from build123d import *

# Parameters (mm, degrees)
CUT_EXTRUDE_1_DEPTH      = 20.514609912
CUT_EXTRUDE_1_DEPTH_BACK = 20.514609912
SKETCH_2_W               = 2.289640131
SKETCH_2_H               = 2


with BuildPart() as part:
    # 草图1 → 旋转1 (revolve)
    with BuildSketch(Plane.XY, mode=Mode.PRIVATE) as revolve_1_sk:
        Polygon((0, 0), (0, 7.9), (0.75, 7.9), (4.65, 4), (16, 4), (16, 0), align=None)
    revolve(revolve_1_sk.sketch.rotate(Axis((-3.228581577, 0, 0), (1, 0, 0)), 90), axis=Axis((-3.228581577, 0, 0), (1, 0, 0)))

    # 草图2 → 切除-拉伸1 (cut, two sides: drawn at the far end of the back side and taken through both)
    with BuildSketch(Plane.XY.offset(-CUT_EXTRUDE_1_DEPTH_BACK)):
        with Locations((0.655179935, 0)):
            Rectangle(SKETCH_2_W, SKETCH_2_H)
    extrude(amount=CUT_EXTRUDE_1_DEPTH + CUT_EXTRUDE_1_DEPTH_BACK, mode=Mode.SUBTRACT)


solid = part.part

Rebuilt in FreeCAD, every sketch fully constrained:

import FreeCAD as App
import Part
import Sketcher
from FreeCAD import Vector
Q = App.Units.Quantity


def add_polygon(sketch, points):
    """Adds a closed chain of lines whose ends are joined by coincident constraints."""
    first, n = sketch.GeometryCount, len(points)
    for a, b in zip(points, points[1:] + points[:1]):
        sketch.addGeometry(Part.LineSegment(App.Vector(*a, 0), App.Vector(*b, 0)), False)
    for i in range(n):
        sketch.addConstraint(Sketcher.Constraint("Coincident", first + i, 2, first + (i + 1) % n, 1))

doc = App.newDocument("Part")
params = doc.addObject("Spreadsheet::Sheet", "Params")
for row, (alias, value) in enumerate([
    ("sketch1_width", "16 mm"),
    ("sketch1_height", "4 mm"),
    ("sketch1_height2", "7.9 mm"),
    ("sketch1_width2", "11.35 mm"),
    ("revolution_angle", "360 deg"),
    ("sketch2_height", "2 mm"),
], start=1):
    params.set(f"A{row}", alias)
    params.set(f"B{row}", "=" + value)
    params.setAlias(f"B{row}", alias)

body = doc.addObject("PartDesign::Body", "Body")

# Sketch on XY plane
sketch1 = body.newObject("Sketcher::SketchObject", "Sketch")
sketch1.AttachmentSupport = (doc.getObject("XY_Plane"), [""])
sketch1.MapMode = "FlatFace"
add_polygon(sketch1, [(0, 7.9), (0, 0), (16, 0), (16, 4), (4.7, 4), (0.8, 7.9)])  # lines 0-5
sketch1.addConstraint(Sketcher.Constraint("Vertical", 0))
sketch1.addConstraint(Sketcher.Constraint("Horizontal", 1))
sketch1.addConstraint(Sketcher.Constraint("Vertical", 2))
sketch1.addConstraint(Sketcher.Constraint("Horizontal", 3))
sketch1.addConstraint(Sketcher.Constraint("Horizontal", 5))
sketch1.addConstraint(Sketcher.Constraint("Coincident", 0, 2, -1, 1))
sketch1.addConstraint(Sketcher.Constraint("DistanceX", 1, 1, 1, 2, Q("16 mm")))
sketch1.addConstraint(Sketcher.Constraint("DistanceY", 2, 1, 2, 2, Q("4 mm")))
sketch1.addConstraint(Sketcher.Constraint("Angle", 4, Q("135 deg")))
sketch1.addConstraint(Sketcher.Constraint("DistanceY", 0, 2, 0, 1, Q("7.9 mm")))
sketch1.addConstraint(Sketcher.Constraint("DistanceX", 3, 2, 3, 1, Q("11.35 mm")))
sketch1.setExpression("Constraints[12]", "Params.sketch1_width")
sketch1.setExpression("Constraints[13]", "Params.sketch1_height")
sketch1.setExpression("Constraints[15]", "Params.sketch1_height2")
sketch1.setExpression("Constraints[16]", "Params.sketch1_width2")
revolution = body.newObject("PartDesign::Revolution", "Revolution")
revolution.Profile = sketch1
revolution.ReferenceAxis = (sketch1, ["H_Axis"])
revolution.setExpression("Angle", "Params.revolution_angle")

# Sketch on XY plane
sketch2 = body.newObject("Sketcher::SketchObject", "Sketch001")
sketch2.AttachmentSupport = (doc.getObject("XY_Plane"), [""])
sketch2.MapMode = "FlatFace"
add_polygon(sketch2, [(-0.5, 1), (-0.5, -1), (1.8, -1), (1.8, 1)])  # lines 0-3
sketch2.addConstraint(Sketcher.Constraint("Vertical", 0))
sketch2.addConstraint(Sketcher.Constraint("Horizontal", 1))
sketch2.addConstraint(Sketcher.Constraint("Vertical", 2))
sketch2.addConstraint(Sketcher.Constraint("Horizontal", 3))
sketch2.addConstraint(Sketcher.Constraint("DistanceY", 0, 2, 0, 1, Q("2 mm")))
sketch2.addConstraint(Sketcher.Constraint("DistanceY", 0, 2, -1, 1, Q("1 mm")))
sketch2.addConstraint(Sketcher.Constraint("DistanceX", -1, 1, 1, 2, Q("1.8 mm")))
sketch2.addConstraint(Sketcher.Constraint("DistanceX", 1, 1, 1, 2, Q("2.28964 mm")))
sketch2.setExpression("Constraints[8]", "Params.sketch2_height")
pocket1 = body.newObject("PartDesign::Pocket", "Pocket")
pocket1.Profile = sketch2
pocket1.Type = "ThroughAll"
pocket1.Midplane = True

doc.recompute()
